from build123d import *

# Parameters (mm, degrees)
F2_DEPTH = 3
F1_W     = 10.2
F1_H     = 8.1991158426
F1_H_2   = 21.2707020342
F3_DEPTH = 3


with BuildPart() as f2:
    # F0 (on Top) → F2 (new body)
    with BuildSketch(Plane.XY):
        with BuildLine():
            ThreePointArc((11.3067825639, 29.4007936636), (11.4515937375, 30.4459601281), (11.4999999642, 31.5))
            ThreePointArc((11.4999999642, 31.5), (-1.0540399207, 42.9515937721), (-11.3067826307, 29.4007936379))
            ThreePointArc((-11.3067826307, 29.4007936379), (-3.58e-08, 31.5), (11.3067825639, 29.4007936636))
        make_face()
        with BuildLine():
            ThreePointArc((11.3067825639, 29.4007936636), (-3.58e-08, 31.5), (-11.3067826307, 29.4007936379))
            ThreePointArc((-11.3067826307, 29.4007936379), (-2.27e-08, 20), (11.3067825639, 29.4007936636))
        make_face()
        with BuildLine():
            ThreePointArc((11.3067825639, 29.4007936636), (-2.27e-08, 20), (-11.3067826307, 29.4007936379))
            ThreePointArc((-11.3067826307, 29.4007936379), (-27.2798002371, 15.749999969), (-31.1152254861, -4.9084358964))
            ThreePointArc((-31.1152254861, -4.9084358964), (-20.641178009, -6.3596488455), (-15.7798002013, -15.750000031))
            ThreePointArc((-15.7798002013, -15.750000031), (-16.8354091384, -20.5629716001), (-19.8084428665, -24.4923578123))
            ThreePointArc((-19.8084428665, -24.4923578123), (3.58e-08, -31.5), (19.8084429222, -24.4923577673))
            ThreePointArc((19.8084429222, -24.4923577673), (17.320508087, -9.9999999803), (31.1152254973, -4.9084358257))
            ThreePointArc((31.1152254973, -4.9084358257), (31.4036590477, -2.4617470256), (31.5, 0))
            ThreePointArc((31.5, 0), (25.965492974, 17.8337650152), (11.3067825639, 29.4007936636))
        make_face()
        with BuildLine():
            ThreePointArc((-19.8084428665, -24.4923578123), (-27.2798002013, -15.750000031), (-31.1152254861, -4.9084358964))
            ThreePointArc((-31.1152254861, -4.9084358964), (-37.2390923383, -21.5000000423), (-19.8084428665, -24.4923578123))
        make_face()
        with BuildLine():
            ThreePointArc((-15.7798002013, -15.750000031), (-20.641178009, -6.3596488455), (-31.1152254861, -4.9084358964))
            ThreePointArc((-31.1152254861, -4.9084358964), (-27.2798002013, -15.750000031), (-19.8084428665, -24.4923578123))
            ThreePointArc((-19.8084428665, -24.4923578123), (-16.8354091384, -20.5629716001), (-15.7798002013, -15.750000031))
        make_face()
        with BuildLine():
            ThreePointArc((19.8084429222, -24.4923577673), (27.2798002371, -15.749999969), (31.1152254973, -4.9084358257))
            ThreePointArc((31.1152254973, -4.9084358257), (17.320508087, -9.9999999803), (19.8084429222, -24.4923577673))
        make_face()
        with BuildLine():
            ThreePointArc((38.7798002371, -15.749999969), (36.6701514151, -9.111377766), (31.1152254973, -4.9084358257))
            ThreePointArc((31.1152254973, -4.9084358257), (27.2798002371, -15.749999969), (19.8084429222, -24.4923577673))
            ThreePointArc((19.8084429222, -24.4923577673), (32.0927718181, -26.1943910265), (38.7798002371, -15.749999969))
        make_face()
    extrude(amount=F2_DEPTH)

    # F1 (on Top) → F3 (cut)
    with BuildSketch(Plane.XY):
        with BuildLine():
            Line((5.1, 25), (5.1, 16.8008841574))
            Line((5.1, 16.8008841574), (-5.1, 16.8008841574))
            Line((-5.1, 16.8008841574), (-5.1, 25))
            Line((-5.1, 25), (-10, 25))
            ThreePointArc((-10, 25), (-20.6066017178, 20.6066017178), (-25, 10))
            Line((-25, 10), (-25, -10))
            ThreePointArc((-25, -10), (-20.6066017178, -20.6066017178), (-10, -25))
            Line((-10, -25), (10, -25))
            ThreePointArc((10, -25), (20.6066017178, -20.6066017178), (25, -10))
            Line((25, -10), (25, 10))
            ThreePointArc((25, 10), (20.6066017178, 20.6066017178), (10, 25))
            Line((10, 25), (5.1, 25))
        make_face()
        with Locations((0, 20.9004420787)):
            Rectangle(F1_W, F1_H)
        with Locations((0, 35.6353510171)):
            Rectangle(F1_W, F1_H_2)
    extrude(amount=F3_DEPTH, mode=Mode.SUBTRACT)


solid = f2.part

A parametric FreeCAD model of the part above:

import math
import FreeCAD as App
import Part
import Sketcher
from FreeCAD import Vector

doc = App.newDocument("Part")
body = doc.addObject("PartDesign::Body", "Body")

sketch1 = body.newObject("Sketcher::SketchObject", "Sketch")
sketch1.AttachmentSupport = (doc.getObject("XY_Plane"), [""])
sketch1.MapMode = "FlatFace"
sketch1.addGeometry([
    Part.ArcOfCircle(Part.Circle(Vector(0, 31.5, 0), Vector(0, 0, 1), 11.5), math.radians(-10.52), math.radians(0)),
    Part.ArcOfCircle(Part.Circle(Vector(0, 31.5, 0), Vector(0, 0, 1), 11.5), math.radians(0), math.radians(191)),
    Part.ArcOfCircle(Part.Circle(Vector(0, 0, 0), Vector(0, 0, 1), 31.5), math.radians(111), math.radians(189)),
    Part.ArcOfCircle(Part.Circle(Vector(-27.3, -15.8, 0), Vector(0, 0, 1), 11.5), math.radians(109), math.radians(311)),
    Part.ArcOfCircle(Part.Circle(Vector(0, 0, 0), Vector(0, 0, 1), 31.5), math.radians(-129), math.radians(-51)),
    Part.ArcOfCircle(Part.Circle(Vector(27.3, -15.7, 0), Vector(0, 0, 1), 11.5), math.radians(-131), math.radians(0)),
    Part.ArcOfCircle(Part.Circle(Vector(27.3, -15.7, 0), Vector(0, 0, 1), 11.5), math.radians(0), math.radians(71)),
    Part.ArcOfCircle(Part.Circle(Vector(0, 0, 0), Vector(0, 0, 1), 31.5), math.radians(-8.96), math.radians(0)),
    Part.ArcOfCircle(Part.Circle(Vector(0, 0, 0), Vector(0, 0, 1), 31.5), math.radians(0), math.radians(69)),
], False)
sketch1.addConstraint([
    Sketcher.Constraint("Tangent", 0, 2, 1, 1),
    Sketcher.Constraint("Coincident", 1, 2, 2, 1),
    Sketcher.Constraint("Coincident", 2, 2, 3, 1),
    Sketcher.Constraint("Coincident", 3, 2, 4, 1),
    Sketcher.Constraint("Coincident", 4, 2, 5, 1),
    Sketcher.Constraint("Tangent", 5, 2, 6, 1),
    Sketcher.Constraint("Coincident", 6, 2, 7, 1),
    Sketcher.Constraint("Tangent", 7, 2, 8, 1),
    Sketcher.Constraint("Coincident", 8, 2, 0, 1),
    Sketcher.Constraint("Coincident", 2, 3, -1, 1),
    Sketcher.Constraint("Coincident", 4, 3, -1, 1),
    Sketcher.Constraint("Coincident", 7, 3, -1, 1),
    Sketcher.Constraint("Equal", 0, 1),
    Sketcher.Constraint("Equal", 1, 3),
    Sketcher.Constraint("Equal", 2, 4),
    Sketcher.Constraint("Equal", 3, 5),
    Sketcher.Constraint("Equal", 5, 6),
    Sketcher.Constraint("Equal", 4, 7),
    Sketcher.Constraint("Equal", 7, 8),
    Sketcher.Constraint("Symmetric", 3, 3, 5, 3, -2),
    Sketcher.Constraint("PointOnObject", 0, 3, -2),
    Sketcher.Constraint("PointOnObject", 7, 2, -1),
    Sketcher.Constraint("Horizontal", 1, 3, 0, 2),
    Sketcher.Constraint("Horizontal", 6, 3, 5, 2),
    Sketcher.Constraint("Radius", 0, 11.5),
    Sketcher.Constraint("Radius", 2, 31.5),
    Sketcher.Constraint("DistanceY", -1, 1, 0, 3, 31.5),
    Sketcher.Constraint("DistanceY", 3, 3, -1, 1, 15.75),
    Sketcher.Constraint("DistanceX", 3, 3, -1, 1, 27.2798),
])
pad1 = body.newObject("PartDesign::Pad", "Pad")
pad1.Profile = sketch1
pad1.Length = 3

sketch2 = body.newObject("Sketcher::SketchObject", "Sketch001")
sketch2.AttachmentSupport = (doc.getObject("XY_Plane"), [""])
sketch2.MapMode = "FlatFace"
sketch2.addGeometry([
    Part.ArcOfCircle(Part.Circle(Vector(-10, 10, 0), Vector(0, 0, 1), 15), math.radians(90), math.radians(180)),
    Part.LineSegment(Vector(-25, 10, 0), Vector(-25, -10, 0)),
    Part.ArcOfCircle(Part.Circle(Vector(-10, -10, 0), Vector(0, 0, 1), 15), math.radians(180), math.radians(270)),
    Part.LineSegment(Vector(-10, -25, 0), Vector(10, -25, 0)),
    Part.ArcOfCircle(Part.Circle(Vector(10, -10, 0), Vector(0, 0, 1), 15), math.radians(-90), math.radians(0)),
    Part.LineSegment(Vector(25, -10, 0), Vector(25, 10, 0)),
    Part.ArcOfCircle(Part.Circle(Vector(10, 10, 0), Vector(0, 0, 1), 15), math.radians(0), math.radians(90)),
    Part.LineSegment(Vector(10, 25, 0), Vector(5.1, 25, 0)),
    Part.LineSegment(Vector(5.1, 25, 0), Vector(5.1, 46.3, 0)),
    Part.LineSegment(Vector(5.1, 46.3, 0), Vector(-5.1, 46.3, 0)),
    Part.LineSegment(Vector(-5.1, 46.3, 0), Vector(-5.1, 25, 0)),
    Part.LineSegment(Vector(-5.1, 25, 0), Vector(-10, 25, 0)),
], False)
sketch2.addConstraint([
    Sketcher.Constraint("Tangent", 0, 2, 1, 1),
    Sketcher.Constraint("Tangent", 1, 2, 2, 1),
    Sketcher.Constraint("Tangent", 2, 2, 3, 1),
    Sketcher.Constraint("Tangent", 3, 2, 4, 1),
    Sketcher.Constraint("Tangent", 4, 2, 5, 1),
    Sketcher.Constraint("Tangent", 5, 2, 6, 1),
    Sketcher.Constraint("Tangent", 6, 2, 7, 1),
    Sketcher.Constraint("Coincident", 7, 2, 8, 1),
    Sketcher.Constraint("Coincident", 8, 2, 9, 1),
    Sketcher.Constraint("Coincident", 9, 2, 10, 1),
    Sketcher.Constraint("Coincident", 10, 2, 11, 1),
    Sketcher.Constraint("Tangent", 11, 2, 0, 1),
    Sketcher.Constraint("Vertical", 1),
    Sketcher.Constraint("Horizontal", 3),
    Sketcher.Constraint("Vertical", 5),
    Sketcher.Constraint("Horizontal", 7),
    Sketcher.Constraint("Vertical", 8),
    Sketcher.Constraint("Horizontal", 9),
    Sketcher.Constraint("Vertical", 10),
    Sketcher.Constraint("Horizontal", 11),
    Sketcher.Constraint("Equal", 0, 2),
    Sketcher.Constraint("Equal", 2, 4),
    Sketcher.Constraint("Equal", 4, 6),
    Sketcher.Constraint("Symmetric", 0, 3, 4, 3, -1, 1),
    Sketcher.Constraint("Symmetric", 7, 2, 10, 2, -2),
    Sketcher.Constraint("Equal", 3, 1),
    Sketcher.Constraint("Radius", 0, 15.0),
    Sketcher.Constraint("DistanceX", 3, 1, 3, 2, 20.0),
    Sketcher.Constraint("DistanceX", 7, 2, 7, 1, 4.9),
    Sketcher.Constraint("DistanceY", 8, 1, 8, 2, 21.270702),
])
pocket1 = body.newObject("PartDesign::Pocket", "Pocket")
pocket1.Profile = sketch2
pocket1.Length = 3
pocket1.Reversed = True

doc.recompute()
